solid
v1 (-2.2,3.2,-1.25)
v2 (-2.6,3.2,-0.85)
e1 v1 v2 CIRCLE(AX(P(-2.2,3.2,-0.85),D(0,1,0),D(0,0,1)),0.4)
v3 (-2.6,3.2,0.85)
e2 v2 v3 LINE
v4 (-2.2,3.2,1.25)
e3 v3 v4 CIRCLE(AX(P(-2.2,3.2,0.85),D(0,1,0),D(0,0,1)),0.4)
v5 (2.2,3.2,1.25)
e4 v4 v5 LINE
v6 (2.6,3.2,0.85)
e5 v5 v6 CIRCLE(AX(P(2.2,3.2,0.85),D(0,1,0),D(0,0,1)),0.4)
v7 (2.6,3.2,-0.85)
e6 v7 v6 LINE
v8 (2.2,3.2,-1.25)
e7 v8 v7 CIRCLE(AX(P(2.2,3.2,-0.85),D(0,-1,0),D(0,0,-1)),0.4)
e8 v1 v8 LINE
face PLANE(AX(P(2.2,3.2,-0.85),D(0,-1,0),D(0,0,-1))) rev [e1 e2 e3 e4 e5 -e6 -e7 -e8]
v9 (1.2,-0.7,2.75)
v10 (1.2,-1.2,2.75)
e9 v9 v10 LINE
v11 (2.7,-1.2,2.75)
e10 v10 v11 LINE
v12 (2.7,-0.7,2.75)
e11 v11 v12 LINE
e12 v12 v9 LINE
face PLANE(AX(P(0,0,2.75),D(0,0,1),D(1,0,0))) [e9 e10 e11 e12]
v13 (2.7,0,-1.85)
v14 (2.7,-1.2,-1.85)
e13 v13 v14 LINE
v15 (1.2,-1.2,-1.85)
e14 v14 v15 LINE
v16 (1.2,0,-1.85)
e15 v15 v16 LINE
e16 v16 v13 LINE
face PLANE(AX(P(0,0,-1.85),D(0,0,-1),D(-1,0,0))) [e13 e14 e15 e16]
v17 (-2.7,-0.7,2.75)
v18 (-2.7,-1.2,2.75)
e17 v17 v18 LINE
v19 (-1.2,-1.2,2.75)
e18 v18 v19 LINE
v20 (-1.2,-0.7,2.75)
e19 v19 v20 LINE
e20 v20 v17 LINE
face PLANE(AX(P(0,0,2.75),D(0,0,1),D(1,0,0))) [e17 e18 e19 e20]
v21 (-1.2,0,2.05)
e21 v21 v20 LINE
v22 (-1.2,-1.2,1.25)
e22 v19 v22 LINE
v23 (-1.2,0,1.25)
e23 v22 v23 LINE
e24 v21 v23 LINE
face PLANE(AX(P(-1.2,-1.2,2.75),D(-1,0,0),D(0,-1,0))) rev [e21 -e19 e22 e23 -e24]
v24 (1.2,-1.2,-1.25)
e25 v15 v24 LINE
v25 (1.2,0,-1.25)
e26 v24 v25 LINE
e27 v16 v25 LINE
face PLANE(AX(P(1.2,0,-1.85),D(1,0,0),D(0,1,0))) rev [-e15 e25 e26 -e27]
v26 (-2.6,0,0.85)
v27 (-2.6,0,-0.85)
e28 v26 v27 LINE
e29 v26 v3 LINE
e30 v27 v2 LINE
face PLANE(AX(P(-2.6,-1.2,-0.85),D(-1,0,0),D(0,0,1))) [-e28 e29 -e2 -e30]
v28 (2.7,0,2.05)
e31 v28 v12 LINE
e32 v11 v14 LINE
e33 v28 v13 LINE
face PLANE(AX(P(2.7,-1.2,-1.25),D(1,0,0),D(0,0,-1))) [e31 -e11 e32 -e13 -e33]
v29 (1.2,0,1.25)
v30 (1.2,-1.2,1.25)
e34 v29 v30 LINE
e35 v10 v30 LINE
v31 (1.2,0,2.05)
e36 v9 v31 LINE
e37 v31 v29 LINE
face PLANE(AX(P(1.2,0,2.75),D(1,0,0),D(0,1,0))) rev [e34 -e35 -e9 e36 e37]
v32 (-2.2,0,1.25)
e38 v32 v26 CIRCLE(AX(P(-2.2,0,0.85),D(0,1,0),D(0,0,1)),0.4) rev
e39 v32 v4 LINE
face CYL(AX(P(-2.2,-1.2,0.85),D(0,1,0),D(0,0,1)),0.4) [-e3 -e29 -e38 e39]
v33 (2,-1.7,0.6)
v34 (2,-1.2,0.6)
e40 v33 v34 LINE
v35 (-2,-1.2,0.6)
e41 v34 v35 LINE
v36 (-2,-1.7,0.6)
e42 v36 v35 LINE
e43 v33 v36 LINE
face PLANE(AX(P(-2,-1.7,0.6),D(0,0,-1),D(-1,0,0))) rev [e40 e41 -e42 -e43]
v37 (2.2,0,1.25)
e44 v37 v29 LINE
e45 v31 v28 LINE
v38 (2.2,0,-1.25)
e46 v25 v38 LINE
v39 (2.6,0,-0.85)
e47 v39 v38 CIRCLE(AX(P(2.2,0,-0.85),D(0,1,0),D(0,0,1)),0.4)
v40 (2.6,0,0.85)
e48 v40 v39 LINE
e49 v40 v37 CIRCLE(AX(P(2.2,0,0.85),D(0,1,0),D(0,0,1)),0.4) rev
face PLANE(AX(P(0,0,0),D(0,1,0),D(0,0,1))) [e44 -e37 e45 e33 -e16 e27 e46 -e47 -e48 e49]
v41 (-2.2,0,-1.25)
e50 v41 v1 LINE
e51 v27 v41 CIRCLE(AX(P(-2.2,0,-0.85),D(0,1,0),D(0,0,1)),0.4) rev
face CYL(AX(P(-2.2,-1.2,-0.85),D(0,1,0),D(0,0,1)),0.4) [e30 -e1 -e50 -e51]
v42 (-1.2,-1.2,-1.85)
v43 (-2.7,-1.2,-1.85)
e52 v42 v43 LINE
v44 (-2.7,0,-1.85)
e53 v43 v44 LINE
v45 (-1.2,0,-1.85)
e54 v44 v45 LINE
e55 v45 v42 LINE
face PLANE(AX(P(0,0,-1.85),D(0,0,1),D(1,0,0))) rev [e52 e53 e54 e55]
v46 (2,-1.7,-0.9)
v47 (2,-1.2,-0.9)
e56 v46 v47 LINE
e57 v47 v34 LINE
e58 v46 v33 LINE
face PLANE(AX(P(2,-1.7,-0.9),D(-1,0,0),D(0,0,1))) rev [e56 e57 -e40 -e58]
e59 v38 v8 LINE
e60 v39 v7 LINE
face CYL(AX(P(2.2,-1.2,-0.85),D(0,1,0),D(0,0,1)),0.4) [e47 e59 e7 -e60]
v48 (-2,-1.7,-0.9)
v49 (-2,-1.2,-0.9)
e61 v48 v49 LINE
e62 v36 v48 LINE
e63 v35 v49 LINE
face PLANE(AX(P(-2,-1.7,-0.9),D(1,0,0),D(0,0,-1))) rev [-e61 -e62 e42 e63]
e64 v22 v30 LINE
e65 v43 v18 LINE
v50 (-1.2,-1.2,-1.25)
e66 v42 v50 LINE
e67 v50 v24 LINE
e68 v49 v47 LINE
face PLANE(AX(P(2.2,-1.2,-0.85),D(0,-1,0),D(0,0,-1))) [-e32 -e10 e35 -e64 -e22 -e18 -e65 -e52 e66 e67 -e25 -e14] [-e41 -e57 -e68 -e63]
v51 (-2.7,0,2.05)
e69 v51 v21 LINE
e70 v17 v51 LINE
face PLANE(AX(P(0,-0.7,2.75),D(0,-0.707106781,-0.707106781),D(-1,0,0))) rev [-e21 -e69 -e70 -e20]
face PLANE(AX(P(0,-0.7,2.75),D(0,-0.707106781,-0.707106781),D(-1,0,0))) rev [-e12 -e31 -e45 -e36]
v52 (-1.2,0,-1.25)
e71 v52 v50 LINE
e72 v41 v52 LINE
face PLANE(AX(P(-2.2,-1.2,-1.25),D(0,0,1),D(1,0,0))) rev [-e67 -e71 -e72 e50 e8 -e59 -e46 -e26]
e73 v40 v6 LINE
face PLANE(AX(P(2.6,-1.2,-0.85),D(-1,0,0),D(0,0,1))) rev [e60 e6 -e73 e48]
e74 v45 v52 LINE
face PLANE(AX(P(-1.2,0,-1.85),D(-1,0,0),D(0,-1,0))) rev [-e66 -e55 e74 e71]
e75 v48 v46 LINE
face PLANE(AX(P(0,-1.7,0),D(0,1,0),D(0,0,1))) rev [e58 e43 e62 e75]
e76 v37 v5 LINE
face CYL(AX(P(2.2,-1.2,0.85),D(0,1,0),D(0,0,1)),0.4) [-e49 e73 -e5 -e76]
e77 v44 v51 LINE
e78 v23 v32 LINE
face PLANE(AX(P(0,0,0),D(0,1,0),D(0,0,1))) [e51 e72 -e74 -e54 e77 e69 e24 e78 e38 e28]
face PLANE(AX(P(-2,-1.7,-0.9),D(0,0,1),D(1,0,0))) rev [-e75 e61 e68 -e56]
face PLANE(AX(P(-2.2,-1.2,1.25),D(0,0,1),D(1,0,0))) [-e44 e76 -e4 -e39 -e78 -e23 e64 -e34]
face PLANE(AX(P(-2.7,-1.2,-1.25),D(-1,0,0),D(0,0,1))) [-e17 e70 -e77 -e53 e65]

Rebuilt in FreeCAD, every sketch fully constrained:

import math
import FreeCAD as App
import Part
import Sketcher
Q = App.Units.Quantity


def edges_at(feature, points):
    """Names of the edges that pass closest to the given points."""
    edges = feature.Shape.Edges
    near = lambda p: min(range(len(edges)), key=lambda i: edges[i].distToShape(Part.Vertex(*p))[0])
    return sorted({f"Edge{near(p) + 1}" for p in points})


def add_polygon(sketch, points):
    """Adds a closed chain of lines whose ends are joined by coincident constraints."""
    first, n = sketch.GeometryCount, len(points)
    for a, b in zip(points, points[1:] + points[:1]):
        sketch.addGeometry(Part.LineSegment(App.Vector(*a, 0), App.Vector(*b, 0)), False)
    for i in range(n):
        sketch.addConstraint(Sketcher.Constraint("Coincident", first + i, 2, first + (i + 1) % n, 1))

doc = App.newDocument("Part")
params = doc.addObject("Spreadsheet::Sheet", "Params")
for row, (alias, value) in enumerate([
    ("sketch1_radius", "0.4 mm"),
    ("sketch1_width", "4.4 mm"),
    ("sketch1_height", "1.7 mm"),
    ("pad1_length", "3.2 mm"),
    ("pad1_length2", "1.2 mm"),
    ("sketch2_width", "5.4 mm"),
    ("sketch2_height", "2.5 mm"),
    ("pad2_length", "1.2 mm"),
    ("sketch3_width", "4 mm"),
    ("sketch3_height", "1.5 mm"),
    ("pad3_length", "0.5 mm"),
    ("sketch4_width", "1.5 mm"),
    ("sketch4_height", "1.2 mm"),
    ("pad4_length", "0.6 mm"),
    ("sketch5_width", "1.5 mm"),
    ("sketch5_height", "1.2 mm"),
    ("pad5_length", "1.5 mm"),
    ("chamfer_size", "0.7 mm"),
], start=1):
    params.set(f"A{row}", alias)
    params.set(f"B{row}", "=" + value)
    params.setAlias(f"B{row}", alias)

body = doc.addObject("PartDesign::Body", "Body")

# Sketch on XZ plane
sketch1 = doc.addObject("Sketcher::SketchObject", "Sketch")
body.addObject(sketch1)
sketch1.AttachmentSupport = (doc.XZ_Plane, [""])
sketch1.MapMode = "FlatFace"
sketch1.addGeometry([
    Part.LineSegment(App.Vector(-2.6, -0.85, 0), App.Vector(-2.6, 0.85, 0)),  # 0
    Part.ArcOfCircle(Part.Circle(App.Vector(-2.2, 0.85, 0), App.Vector(0, 0, 1), 0.4), math.radians(90), math.radians(180)),  # 1
    Part.LineSegment(App.Vector(-2.2, 1.25, 0), App.Vector(2.2, 1.25, 0)),  # 2
    Part.ArcOfCircle(Part.Circle(App.Vector(2.2, 0.85, 0), App.Vector(0, 0, 1), 0.4), math.radians(0), math.radians(90)),  # 3
    Part.LineSegment(App.Vector(2.6, 0.85, 0), App.Vector(2.6, -0.85, 0)),  # 4
    Part.ArcOfCircle(Part.Circle(App.Vector(2.2, -0.85, 0), App.Vector(0, 0, 1), 0.4), math.radians(-90), math.radians(0)),  # 5
    Part.LineSegment(App.Vector(2.2, -1.25, 0), App.Vector(-2.2, -1.25, 0)),  # 6
    Part.ArcOfCircle(Part.Circle(App.Vector(-2.2, -0.85, 0), App.Vector(0, 0, 1), 0.4), math.radians(-180), math.radians(-90)),  # 7
], False)
sketch1.addConstraint([
    Sketcher.Constraint("Tangent", 0, 2, 1, 2),
    Sketcher.Constraint("Tangent", 1, 1, 2, 1),
    Sketcher.Constraint("Tangent", 2, 2, 3, 2),
    Sketcher.Constraint("Tangent", 3, 1, 4, 1),
    Sketcher.Constraint("Tangent", 4, 2, 5, 2),
    Sketcher.Constraint("Tangent", 5, 1, 6, 1),
    Sketcher.Constraint("Tangent", 6, 2, 7, 2),
    Sketcher.Constraint("Tangent", 7, 1, 0, 1),
    Sketcher.Constraint("Vertical", 0),
    Sketcher.Constraint("Horizontal", 2),
    Sketcher.Constraint("Vertical", 4),
    Sketcher.Constraint("Horizontal", 6),
    Sketcher.Constraint("Equal", 1, 3),
    Sketcher.Constraint("Equal", 3, 5),
    Sketcher.Constraint("Equal", 5, 7),
    Sketcher.Constraint("Symmetric", 1, 3, 5, 3, -1, 1),
    Sketcher.Constraint("Radius", 1, Q("0.4 mm")),
    Sketcher.Constraint("DistanceX", 2, 1, 2, 2, Q("4.4 mm")),
    Sketcher.Constraint("DistanceY", 0, 1, 0, 2, Q("1.7 mm")),
])
sketch1.setExpression("Constraints[16]", "Params.sketch1_radius")
sketch1.setExpression("Constraints[17]", "Params.sketch1_width")
sketch1.setExpression("Constraints[18]", "Params.sketch1_height")
pad1 = doc.addObject("PartDesign::Pad", "Pad")
body.addObject(pad1)
pad1.Profile = sketch1
pad1.Type = "TwoLengths"
pad1.setExpression("Length", "Params.pad1_length")
pad1.setExpression("Length2", "Params.pad1_length2")
pad1.Reversed = True

# Sketch on XZ plane
sketch2 = doc.addObject("Sketcher::SketchObject", "Sketch001")
body.addObject(sketch2)
sketch2.AttachmentSupport = (doc.XZ_Plane, [""])
sketch2.MapMode = "FlatFace"
add_polygon(sketch2, [(-2.7, -1.25), (-2.7, 1.25), (2.7, 1.25), (2.7, -1.25)])  # lines 0-3
sketch2.addConstraint([
    Sketcher.Constraint("Vertical", 0),
    Sketcher.Constraint("Horizontal", 1),
    Sketcher.Constraint("Vertical", 2),
    Sketcher.Constraint("Horizontal", 3),
    Sketcher.Constraint("Symmetric", 0, 2, 2, 2, -1, 1),
    Sketcher.Constraint("DistanceX", 1, 1, 1, 2, Q("5.4 mm")),
    Sketcher.Constraint("DistanceY", 0, 1, 0, 2, Q("2.5 mm")),
])
sketch2.setExpression("Constraints[9]", "Params.sketch2_width")
sketch2.setExpression("Constraints[10]", "Params.sketch2_height")
pad2 = doc.addObject("PartDesign::Pad", "Pad001")
body.addObject(pad2)
pad2.Profile = sketch2
pad2.setExpression("Length", "Params.pad2_length")

# Sketch on XZ plane
sketch3 = doc.addObject("Sketcher::SketchObject", "Sketch002")
body.addObject(sketch3)
sketch3.AttachmentSupport = (doc.XZ_Plane, [""])
sketch3.MapMode = "FlatFace"
sketch3.AttachmentOffset = App.Placement(App.Vector(0, 0, 1.2), App.Rotation())
add_polygon(sketch3, [(2, -0.9), (2, 0.6), (-2, 0.6), (-2, -0.9)])  # lines 0-3
sketch3.addConstraint([
    Sketcher.Constraint("Vertical", 0),
    Sketcher.Constraint("Horizontal", 1),
    Sketcher.Constraint("Vertical", 2),
    Sketcher.Constraint("Horizontal", 3),
    Sketcher.Constraint("DistanceX", 1, 2, 1, 1, Q("4 mm")),
    Sketcher.Constraint("DistanceY", 0, 1, 0, 2, Q("1.5 mm")),
    Sketcher.Constraint("DistanceX", -1, 1, 0, 2, Q("2 mm")),
    Sketcher.Constraint("DistanceY", -1, 1, 0, 2, Q("0.6 mm")),
])
sketch3.setExpression("Constraints[8]", "Params.sketch3_width")
sketch3.setExpression("Constraints[9]", "Params.sketch3_height")
pad3 = doc.addObject("PartDesign::Pad", "Pad002")
body.addObject(pad3)
pad3.Profile = sketch3
pad3.setExpression("Length", "Params.pad3_length")

# Sketch on XY plane
sketch4 = doc.addObject("Sketcher::SketchObject", "Sketch003")
body.addObject(sketch4)
sketch4.AttachmentSupport = (doc.XY_Plane, [""])
sketch4.MapMode = "FlatFace"
sketch4.AttachmentOffset = App.Placement(App.Vector(0, 0, -1.25), App.Rotation())
add_polygon(sketch4, [(-1.2, 0), (-1.2, -1.2), (-2.7, -1.2), (-2.7, 0)])  # lines 0-3
add_polygon(sketch4, [(2.7, 0), (2.7, -1.2), (1.2, -1.2), (1.2, 0)])  # lines 4-7
sketch4.addConstraint([
    Sketcher.Constraint("Vertical", 0),
    Sketcher.Constraint("Horizontal", 1),
    Sketcher.Constraint("Vertical", 2),
    Sketcher.Constraint("Horizontal", 3),
    Sketcher.Constraint("Vertical", 4),
    Sketcher.Constraint("Horizontal", 5),
    Sketcher.Constraint("Vertical", 6),
    Sketcher.Constraint("Horizontal", 7),
    Sketcher.Constraint("Symmetric", 3, 2, 6, 2, -1, 1),
    Sketcher.Constraint("Symmetric", 1, 2, 4, 2, -2),
    Sketcher.Constraint("PointOnObject", 2, 2, -1),
    Sketcher.Constraint("DistanceX", 1, 2, 1, 1, Q("1.5 mm")),
    Sketcher.Constraint("DistanceY", 0, 2, 0, 1, Q("1.2 mm")),
    Sketcher.Constraint("DistanceX", 0, 2, -1, 1, Q("1.2 mm")),
])
sketch4.setExpression("Constraints[19]", "Params.sketch4_width")
sketch4.setExpression("Constraints[20]", "Params.sketch4_height")
pad4 = doc.addObject("PartDesign::Pad", "Pad003")
body.addObject(pad4)
pad4.Profile = sketch4
pad4.setExpression("Length", "Params.pad4_length")
pad4.Reversed = True

# Sketch on XY plane
sketch5 = doc.addObject("Sketcher::SketchObject", "Sketch004")
body.addObject(sketch5)
sketch5.AttachmentSupport = (doc.XY_Plane, [""])
sketch5.MapMode = "FlatFace"
sketch5.AttachmentOffset = App.Placement(App.Vector(0, 0, 1.25), App.Rotation())
add_polygon(sketch5, [(1.2, 0), (1.2, -1.2), (2.7, -1.2), (2.7, 0)])  # lines 0-3
add_polygon(sketch5, [(-2.7, 0), (-2.7, -1.2), (-1.2, -1.2), (-1.2, 0)])  # lines 4-7
sketch5.addConstraint([
    Sketcher.Constraint("Vertical", 0),
    Sketcher.Constraint("Horizontal", 1),
    Sketcher.Constraint("Vertical", 2),
    Sketcher.Constraint("Horizontal", 3),
    Sketcher.Constraint("Vertical", 4),
    Sketcher.Constraint("Horizontal", 5),
    Sketcher.Constraint("Vertical", 6),
    Sketcher.Constraint("Horizontal", 7),
    Sketcher.Constraint("Symmetric", 3, 2, 6, 2, -1, 1),
    Sketcher.Constraint("Symmetric", 1, 2, 4, 2, -2),
    Sketcher.Constraint("PointOnObject", 2, 2, -1),
    Sketcher.Constraint("DistanceX", 1, 1, 1, 2, Q("1.5 mm")),
    Sketcher.Constraint("DistanceY", 0, 2, 0, 1, Q("1.2 mm")),
    Sketcher.Constraint("DistanceX", -1, 1, 0, 2, Q("1.2 mm")),
])
sketch5.setExpression("Constraints[19]", "Params.sketch5_width")
sketch5.setExpression("Constraints[20]", "Params.sketch5_height")
pad5 = doc.addObject("PartDesign::Pad", "Pad004")
body.addObject(pad5)
pad5.Profile = sketch5
pad5.setExpression("Length", "Params.pad5_length")
doc.recompute()

chamfer = doc.addObject("PartDesign::Chamfer", "Chamfer")
body.addObject(chamfer)
chamfer.Base = (pad5, edges_at(pad5, [(1.95, 0, 2.75), (-1.95, 0, 2.75)]))
chamfer.setExpression("Size", "Params.chamfer_size")

doc.recompute()
